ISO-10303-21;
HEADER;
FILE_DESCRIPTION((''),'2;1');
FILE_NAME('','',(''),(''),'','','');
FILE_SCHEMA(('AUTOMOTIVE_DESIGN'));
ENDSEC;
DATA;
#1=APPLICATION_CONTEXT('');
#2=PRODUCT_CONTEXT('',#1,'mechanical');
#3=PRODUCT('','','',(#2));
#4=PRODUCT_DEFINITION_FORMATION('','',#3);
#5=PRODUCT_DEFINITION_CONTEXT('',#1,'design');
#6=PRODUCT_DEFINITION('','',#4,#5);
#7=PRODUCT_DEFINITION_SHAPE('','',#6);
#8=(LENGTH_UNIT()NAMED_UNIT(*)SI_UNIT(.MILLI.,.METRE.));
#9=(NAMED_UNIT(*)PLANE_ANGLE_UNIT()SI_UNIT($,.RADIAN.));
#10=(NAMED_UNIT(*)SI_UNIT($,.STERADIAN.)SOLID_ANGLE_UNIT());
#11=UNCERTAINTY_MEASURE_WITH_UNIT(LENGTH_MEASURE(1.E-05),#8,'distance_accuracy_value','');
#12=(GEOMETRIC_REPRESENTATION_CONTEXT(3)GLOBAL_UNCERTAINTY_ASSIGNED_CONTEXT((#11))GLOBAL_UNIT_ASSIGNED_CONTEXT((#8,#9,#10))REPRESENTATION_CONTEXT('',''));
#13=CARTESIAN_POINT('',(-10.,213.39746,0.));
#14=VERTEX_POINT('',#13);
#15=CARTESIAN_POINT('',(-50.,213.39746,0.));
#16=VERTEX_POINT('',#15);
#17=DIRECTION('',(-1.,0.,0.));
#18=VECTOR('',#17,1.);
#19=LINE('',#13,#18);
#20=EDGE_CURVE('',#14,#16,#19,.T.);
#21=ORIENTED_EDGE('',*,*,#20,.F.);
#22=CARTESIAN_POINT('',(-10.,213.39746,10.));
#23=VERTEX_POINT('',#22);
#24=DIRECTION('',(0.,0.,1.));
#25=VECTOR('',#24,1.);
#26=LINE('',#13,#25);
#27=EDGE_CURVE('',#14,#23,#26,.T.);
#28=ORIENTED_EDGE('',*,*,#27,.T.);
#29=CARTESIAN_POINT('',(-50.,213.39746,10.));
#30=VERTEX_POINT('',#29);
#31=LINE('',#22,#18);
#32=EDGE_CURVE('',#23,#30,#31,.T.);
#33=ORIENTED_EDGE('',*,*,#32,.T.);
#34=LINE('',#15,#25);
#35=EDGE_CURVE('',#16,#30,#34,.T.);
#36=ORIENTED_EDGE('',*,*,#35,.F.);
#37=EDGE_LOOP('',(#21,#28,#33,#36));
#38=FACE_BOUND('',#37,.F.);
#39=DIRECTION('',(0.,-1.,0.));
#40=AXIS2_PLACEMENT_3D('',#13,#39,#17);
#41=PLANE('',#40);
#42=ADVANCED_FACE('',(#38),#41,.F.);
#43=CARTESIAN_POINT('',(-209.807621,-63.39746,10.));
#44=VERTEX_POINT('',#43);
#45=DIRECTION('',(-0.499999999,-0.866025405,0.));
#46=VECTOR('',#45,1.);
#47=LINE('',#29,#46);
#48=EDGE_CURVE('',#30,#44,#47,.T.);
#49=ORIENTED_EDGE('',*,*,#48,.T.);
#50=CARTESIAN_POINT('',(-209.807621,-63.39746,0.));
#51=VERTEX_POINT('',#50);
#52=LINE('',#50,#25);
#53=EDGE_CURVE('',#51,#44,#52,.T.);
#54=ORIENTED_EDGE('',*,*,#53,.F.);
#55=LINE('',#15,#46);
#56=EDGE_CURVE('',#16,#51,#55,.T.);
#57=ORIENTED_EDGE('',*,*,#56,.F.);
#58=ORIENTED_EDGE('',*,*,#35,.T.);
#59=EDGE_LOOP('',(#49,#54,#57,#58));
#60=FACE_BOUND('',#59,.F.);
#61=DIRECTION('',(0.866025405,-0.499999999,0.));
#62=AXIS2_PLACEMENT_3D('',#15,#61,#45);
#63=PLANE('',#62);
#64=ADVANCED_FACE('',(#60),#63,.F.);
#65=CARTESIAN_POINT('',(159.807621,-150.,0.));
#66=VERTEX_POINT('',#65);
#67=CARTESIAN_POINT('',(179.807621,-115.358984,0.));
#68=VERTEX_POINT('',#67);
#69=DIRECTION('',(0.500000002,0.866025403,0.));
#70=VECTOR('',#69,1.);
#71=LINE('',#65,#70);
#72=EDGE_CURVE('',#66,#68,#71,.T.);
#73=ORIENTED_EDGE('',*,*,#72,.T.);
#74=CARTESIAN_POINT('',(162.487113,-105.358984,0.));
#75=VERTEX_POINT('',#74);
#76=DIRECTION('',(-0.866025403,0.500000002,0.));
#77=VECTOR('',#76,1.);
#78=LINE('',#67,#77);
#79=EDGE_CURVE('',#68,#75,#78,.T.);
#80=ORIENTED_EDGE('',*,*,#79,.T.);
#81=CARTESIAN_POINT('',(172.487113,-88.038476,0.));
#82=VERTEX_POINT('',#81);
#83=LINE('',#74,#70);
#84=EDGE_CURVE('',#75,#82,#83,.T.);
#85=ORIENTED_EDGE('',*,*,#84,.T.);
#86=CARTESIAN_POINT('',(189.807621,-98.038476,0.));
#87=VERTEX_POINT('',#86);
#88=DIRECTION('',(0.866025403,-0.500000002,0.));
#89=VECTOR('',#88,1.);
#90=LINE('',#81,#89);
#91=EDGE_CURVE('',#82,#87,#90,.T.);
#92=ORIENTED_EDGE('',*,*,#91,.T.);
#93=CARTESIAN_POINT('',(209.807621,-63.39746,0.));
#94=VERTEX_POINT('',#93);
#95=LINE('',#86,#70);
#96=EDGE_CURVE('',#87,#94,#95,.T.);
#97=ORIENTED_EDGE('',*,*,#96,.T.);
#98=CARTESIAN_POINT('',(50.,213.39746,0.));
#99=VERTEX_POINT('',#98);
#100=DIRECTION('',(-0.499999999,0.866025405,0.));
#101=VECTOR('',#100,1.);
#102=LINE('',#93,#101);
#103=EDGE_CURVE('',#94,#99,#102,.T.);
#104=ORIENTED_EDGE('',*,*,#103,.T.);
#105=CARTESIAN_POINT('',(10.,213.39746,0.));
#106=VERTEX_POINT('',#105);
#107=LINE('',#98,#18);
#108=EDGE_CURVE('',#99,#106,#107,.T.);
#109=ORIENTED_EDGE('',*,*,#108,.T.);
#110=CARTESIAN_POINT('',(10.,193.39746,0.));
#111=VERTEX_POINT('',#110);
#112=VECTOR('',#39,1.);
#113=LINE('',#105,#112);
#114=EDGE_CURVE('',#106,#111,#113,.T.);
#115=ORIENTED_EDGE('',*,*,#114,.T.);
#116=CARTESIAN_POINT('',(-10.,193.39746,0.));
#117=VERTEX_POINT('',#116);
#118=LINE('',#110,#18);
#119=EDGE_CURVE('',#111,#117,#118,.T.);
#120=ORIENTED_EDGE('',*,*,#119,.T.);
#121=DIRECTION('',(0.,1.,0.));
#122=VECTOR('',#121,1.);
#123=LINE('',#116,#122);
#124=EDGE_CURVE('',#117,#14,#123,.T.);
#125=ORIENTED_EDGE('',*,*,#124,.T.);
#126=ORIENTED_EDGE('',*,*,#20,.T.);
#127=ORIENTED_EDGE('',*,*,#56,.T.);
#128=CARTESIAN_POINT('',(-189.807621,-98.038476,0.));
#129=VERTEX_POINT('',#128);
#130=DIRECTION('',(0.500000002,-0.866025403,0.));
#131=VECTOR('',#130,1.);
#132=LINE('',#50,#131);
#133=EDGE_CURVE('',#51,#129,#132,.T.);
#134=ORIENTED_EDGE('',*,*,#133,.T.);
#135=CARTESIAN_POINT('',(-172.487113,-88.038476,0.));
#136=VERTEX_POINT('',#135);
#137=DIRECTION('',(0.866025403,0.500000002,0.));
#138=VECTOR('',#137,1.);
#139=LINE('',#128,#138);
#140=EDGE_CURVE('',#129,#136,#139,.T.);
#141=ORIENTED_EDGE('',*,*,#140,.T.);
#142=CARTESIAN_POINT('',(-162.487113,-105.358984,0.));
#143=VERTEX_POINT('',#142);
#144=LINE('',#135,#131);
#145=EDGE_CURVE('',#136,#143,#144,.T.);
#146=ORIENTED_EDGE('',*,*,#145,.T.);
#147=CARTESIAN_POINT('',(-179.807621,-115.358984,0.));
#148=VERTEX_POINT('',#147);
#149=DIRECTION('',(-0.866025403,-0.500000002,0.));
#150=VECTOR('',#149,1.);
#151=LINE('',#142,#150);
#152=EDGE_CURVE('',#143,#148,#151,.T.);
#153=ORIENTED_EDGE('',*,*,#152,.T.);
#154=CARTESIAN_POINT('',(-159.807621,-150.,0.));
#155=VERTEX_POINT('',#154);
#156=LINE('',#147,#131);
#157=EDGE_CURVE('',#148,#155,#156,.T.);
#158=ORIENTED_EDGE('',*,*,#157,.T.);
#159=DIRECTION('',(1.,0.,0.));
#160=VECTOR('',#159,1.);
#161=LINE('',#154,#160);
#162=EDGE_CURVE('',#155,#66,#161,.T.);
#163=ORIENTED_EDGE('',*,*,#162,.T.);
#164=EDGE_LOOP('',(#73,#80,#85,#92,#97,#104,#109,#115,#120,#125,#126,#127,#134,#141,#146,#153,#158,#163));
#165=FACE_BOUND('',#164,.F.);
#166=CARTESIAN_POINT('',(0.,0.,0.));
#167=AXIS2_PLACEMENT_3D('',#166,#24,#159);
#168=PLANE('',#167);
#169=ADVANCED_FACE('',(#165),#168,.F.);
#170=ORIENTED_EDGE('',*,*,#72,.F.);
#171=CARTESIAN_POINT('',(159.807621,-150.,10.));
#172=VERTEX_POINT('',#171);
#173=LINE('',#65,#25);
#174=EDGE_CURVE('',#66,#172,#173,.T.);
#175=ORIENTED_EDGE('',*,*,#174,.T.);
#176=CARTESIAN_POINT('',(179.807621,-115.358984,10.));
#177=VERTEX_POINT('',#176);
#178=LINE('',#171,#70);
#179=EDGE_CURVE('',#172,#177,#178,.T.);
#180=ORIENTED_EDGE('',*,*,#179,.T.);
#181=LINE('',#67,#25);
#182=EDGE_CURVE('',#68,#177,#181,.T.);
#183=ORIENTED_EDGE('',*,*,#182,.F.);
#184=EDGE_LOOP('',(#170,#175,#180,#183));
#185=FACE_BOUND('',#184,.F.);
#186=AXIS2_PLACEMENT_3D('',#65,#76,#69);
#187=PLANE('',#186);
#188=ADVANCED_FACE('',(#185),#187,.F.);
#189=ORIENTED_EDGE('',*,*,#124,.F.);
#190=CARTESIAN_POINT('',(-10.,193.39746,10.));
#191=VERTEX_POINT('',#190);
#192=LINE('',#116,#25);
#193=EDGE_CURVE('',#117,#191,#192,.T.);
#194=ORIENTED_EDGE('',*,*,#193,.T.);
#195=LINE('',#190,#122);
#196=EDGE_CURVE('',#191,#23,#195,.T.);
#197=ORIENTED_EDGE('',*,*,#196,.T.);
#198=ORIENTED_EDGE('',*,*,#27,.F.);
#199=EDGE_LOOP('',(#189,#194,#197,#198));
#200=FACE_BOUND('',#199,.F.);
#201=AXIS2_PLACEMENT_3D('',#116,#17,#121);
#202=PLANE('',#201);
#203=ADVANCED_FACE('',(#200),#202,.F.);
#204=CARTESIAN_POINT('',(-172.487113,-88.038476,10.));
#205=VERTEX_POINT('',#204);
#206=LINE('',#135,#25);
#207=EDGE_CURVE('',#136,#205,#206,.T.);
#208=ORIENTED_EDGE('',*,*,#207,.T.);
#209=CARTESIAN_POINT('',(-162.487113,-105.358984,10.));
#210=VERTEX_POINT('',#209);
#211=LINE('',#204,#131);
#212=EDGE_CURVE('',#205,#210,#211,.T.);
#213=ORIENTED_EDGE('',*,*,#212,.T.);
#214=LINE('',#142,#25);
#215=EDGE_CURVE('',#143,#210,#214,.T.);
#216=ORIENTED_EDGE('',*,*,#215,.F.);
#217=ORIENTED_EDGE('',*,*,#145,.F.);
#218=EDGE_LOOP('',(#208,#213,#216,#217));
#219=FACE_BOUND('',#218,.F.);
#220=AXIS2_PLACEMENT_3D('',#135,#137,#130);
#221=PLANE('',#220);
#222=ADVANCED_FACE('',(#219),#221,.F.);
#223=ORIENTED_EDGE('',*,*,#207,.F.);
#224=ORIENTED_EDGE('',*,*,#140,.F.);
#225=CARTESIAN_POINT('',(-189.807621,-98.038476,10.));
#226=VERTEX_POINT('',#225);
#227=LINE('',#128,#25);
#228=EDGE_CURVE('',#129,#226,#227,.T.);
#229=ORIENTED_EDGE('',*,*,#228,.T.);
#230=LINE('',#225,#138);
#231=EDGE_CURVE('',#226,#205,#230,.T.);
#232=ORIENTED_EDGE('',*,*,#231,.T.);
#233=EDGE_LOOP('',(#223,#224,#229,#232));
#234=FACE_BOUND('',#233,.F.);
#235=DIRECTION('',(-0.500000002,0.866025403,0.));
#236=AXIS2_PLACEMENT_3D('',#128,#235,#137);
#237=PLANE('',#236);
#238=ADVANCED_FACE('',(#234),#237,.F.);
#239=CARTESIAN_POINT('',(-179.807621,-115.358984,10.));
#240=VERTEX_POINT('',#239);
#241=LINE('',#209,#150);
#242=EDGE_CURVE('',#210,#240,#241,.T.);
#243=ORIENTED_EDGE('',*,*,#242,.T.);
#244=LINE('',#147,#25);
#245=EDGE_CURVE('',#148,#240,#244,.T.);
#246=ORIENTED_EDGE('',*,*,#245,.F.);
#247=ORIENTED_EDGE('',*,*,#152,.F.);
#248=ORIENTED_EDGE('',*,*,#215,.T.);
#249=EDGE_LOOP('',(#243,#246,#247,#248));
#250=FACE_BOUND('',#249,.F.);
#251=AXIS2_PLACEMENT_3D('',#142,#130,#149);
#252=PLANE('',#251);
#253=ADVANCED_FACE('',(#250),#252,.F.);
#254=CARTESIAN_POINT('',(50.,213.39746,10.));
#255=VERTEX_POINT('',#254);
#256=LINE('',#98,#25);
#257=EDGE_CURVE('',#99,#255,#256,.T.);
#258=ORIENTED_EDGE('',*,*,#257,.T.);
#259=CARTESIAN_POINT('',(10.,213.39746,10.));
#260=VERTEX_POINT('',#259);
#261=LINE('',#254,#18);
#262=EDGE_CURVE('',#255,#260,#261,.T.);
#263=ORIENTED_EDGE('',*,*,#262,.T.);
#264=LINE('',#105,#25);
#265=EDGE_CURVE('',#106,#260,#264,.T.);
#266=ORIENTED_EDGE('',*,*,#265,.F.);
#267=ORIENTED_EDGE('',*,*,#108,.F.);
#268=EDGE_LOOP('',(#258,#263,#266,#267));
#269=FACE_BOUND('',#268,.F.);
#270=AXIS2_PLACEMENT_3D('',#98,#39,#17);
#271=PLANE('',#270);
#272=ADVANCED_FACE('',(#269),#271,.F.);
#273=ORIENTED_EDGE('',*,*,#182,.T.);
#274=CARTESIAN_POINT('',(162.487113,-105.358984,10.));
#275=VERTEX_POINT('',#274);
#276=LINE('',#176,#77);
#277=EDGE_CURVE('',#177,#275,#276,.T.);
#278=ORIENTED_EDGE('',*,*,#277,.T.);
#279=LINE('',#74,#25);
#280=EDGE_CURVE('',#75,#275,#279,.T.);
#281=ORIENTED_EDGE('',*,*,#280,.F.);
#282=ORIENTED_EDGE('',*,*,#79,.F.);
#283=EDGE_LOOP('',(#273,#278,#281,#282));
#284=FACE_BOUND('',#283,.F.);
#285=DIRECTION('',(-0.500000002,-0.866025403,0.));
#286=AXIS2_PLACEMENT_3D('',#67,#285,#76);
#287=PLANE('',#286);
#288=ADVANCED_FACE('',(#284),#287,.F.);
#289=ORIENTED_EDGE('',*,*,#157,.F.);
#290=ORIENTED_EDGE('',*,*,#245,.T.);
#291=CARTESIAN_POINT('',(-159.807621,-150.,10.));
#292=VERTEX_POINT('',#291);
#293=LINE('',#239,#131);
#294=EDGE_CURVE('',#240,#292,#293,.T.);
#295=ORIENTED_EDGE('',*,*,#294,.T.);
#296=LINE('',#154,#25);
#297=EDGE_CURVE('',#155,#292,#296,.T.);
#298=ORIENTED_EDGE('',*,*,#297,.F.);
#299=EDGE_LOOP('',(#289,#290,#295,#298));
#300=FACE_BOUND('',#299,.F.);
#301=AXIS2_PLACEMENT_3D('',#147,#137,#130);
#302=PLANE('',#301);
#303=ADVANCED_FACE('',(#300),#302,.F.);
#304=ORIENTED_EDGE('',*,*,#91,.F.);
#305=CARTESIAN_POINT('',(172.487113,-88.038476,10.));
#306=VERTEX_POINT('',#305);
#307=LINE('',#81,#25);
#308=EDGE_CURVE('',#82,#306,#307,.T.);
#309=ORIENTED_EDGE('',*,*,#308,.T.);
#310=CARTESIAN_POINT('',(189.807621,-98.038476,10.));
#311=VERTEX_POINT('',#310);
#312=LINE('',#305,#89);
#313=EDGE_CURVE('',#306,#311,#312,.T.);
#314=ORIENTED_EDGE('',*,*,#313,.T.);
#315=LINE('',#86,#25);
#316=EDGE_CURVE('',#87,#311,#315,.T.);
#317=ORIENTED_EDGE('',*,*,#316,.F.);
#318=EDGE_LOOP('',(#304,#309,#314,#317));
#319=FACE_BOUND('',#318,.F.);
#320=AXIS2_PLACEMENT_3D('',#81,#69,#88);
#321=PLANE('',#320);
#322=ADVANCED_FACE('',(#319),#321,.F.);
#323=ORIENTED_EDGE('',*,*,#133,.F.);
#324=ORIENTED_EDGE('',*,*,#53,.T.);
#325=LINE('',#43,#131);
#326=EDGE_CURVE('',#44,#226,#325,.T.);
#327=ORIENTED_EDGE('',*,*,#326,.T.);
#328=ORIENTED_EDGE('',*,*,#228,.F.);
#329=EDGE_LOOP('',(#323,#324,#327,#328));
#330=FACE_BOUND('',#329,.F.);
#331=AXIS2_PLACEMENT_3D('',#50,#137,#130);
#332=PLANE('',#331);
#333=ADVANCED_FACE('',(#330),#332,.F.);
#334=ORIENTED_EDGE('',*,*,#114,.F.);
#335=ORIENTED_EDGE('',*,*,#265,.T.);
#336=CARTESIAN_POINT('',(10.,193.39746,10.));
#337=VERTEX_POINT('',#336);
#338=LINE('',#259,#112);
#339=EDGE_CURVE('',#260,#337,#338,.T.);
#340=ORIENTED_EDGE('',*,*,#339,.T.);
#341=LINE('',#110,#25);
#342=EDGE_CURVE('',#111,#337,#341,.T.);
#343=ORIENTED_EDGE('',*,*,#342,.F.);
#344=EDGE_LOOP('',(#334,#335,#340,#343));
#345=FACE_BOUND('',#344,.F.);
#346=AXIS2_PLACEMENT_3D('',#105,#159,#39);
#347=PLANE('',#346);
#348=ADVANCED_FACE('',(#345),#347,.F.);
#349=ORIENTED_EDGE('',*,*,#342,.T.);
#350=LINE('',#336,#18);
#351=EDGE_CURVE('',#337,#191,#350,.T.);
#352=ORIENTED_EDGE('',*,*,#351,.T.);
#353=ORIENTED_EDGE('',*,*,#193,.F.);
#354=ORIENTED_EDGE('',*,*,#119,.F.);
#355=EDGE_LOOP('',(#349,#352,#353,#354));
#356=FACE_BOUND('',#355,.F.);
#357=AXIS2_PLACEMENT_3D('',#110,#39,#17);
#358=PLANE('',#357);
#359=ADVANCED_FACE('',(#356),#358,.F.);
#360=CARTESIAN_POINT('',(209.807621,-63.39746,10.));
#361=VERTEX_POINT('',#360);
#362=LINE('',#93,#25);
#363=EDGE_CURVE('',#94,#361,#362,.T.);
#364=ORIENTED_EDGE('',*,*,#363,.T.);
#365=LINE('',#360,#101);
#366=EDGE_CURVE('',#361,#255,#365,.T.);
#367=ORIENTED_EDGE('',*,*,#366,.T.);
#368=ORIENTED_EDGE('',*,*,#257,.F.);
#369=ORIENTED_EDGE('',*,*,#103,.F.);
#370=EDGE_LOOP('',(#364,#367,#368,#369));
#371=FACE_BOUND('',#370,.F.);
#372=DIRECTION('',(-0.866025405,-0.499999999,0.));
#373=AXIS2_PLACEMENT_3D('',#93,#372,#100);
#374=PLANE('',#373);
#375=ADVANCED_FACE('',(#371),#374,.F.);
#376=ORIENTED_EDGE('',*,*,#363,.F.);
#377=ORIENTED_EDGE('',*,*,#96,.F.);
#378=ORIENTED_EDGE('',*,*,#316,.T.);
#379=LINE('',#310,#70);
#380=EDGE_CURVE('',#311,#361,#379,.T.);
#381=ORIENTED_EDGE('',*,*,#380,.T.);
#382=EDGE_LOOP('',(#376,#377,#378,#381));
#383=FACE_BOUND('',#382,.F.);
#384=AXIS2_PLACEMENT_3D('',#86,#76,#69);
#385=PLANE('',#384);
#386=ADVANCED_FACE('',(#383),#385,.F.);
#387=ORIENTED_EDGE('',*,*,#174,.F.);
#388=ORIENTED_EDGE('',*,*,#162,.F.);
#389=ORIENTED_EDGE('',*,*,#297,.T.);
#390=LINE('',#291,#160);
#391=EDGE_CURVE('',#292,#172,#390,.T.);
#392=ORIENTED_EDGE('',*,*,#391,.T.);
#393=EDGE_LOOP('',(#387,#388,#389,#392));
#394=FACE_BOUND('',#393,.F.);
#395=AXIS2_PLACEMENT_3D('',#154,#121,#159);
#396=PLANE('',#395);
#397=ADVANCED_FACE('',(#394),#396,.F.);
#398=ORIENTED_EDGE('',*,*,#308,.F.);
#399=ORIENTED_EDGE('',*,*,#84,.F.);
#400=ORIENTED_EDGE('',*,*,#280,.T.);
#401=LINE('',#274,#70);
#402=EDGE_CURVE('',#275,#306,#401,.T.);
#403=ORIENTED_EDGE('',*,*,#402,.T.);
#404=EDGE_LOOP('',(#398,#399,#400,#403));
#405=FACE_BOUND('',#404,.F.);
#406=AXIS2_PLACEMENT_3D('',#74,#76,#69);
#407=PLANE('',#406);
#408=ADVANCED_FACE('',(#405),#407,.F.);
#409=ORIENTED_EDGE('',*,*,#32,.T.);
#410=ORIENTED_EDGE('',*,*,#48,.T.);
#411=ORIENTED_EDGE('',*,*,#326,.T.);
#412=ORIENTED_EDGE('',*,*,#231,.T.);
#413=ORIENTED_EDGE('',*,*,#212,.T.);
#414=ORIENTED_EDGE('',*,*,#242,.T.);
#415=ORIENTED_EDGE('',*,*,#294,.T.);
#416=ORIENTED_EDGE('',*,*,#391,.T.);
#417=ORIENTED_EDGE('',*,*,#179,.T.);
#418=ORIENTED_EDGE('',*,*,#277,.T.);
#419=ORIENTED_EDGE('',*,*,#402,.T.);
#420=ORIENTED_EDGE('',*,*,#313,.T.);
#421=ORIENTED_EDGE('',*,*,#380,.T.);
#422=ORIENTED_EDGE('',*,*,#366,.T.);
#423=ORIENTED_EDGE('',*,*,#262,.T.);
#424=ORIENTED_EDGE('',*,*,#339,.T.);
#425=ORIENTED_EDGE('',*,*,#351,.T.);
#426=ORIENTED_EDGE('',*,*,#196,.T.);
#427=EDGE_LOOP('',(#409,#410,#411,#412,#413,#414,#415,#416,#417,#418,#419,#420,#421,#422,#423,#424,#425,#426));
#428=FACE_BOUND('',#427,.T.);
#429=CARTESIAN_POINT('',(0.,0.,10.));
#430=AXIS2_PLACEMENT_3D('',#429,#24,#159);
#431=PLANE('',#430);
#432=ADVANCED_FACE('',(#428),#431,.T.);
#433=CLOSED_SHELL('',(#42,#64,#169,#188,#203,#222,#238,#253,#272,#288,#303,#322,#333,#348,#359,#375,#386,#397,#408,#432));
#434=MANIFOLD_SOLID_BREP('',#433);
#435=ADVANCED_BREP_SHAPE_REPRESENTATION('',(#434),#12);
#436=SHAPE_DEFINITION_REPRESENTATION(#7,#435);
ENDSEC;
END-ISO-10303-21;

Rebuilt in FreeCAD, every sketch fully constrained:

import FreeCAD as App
import Part
import Sketcher

V = App.Vector
Q = App.Units.Quantity


def add_polygon(sketch, points):
    """Adds a closed chain of lines whose ends are joined by coincident constraints."""
    first, n = sketch.GeometryCount, len(points)
    for a, b in zip(points, points[1:] + points[:1]):
        sketch.addGeometry(Part.LineSegment(App.Vector(*a, 0), App.Vector(*b, 0)), False)
    for i in range(n):
        sketch.addConstraint(Sketcher.Constraint("Coincident", first + i, 2, first + (i + 1) % n, 1))

doc = App.newDocument("Part")
params = doc.addObject("Spreadsheet::Sheet", "Params")
for row, (alias, value) in enumerate([
    ("sketch1_width", "40 mm"),
    ("sketch1_width2", "20 mm"),
    ("sketch1_length", "40 mm"),
    ("sketch1_length2", "20 mm"),
    ("pad1_length", "10 mm"),
], start=1):
    params.set(f"A{row}", alias)
    params.set(f"B{row}", "=" + value)
    params.setAlias(f"B{row}", alias)

body = doc.addObject("PartDesign::Body", "Body")

# Sketch on XY plane
sketch1 = doc.addObject("Sketcher::SketchObject", "Sketch")
body.addObject(sketch1)
sketch1.AttachmentSupport = (doc.XY_Plane, [""])
sketch1.MapMode = "FlatFace"
add_polygon(sketch1, [(-10, 213.39746), (-50, 213.39746), (-209.807621, -63.39746), (-189.807621, -98.038476), (-172.487113, -88.038476), (-162.487113, -105.358984), (-179.807621, -115.358984), (-159.807621, -150), (159.807621, -150), (179.807621, -115.358984), (162.487113, -105.358984), (172.487113, -88.038476), (189.807621, -98.038476), (209.807621, -63.39746), (50, 213.39746), (10, 213.39746), (10, 193.39746), (-10, 193.39746)])  # lines 0-17
sketch1.addConstraint([
    Sketcher.Constraint("Horizontal", 0),
    Sketcher.Constraint("Horizontal", 7),
    Sketcher.Constraint("Horizontal", 14),
    Sketcher.Constraint("Vertical", 15),
    Sketcher.Constraint("Horizontal", 16),
    Sketcher.Constraint("Vertical", 17),
    Sketcher.Constraint("Symmetric", 5, 2, 8, 2, -2),
    Sketcher.Constraint("Symmetric", 4, 2, 9, 2, -2),
    Sketcher.Constraint("Symmetric", 3, 2, 10, 2, -2),
    Sketcher.Constraint("Symmetric", 2, 2, 11, 2, -2),
    Sketcher.Constraint("Symmetric", 1, 2, 12, 2, -2),
    Sketcher.Constraint("Symmetric", 0, 2, 13, 2, -2),
    Sketcher.Constraint("Perpendicular", 2, 3),
    Sketcher.Constraint("Perpendicular", 3, 4),
    Sketcher.Constraint("Perpendicular", 4, 5),
    Sketcher.Constraint("Perpendicular", 5, 6),
    Sketcher.Constraint("Parallel", 1, 8),
    Sketcher.Constraint("Perpendicular", 8, 9),
    Sketcher.Constraint("Equal", 0, 14),
    Sketcher.Constraint("Equal", 16, 15),
    Sketcher.Constraint("Equal", 3, 4),
    Sketcher.Constraint("Equal", 4, 5),
    Sketcher.Constraint("Equal", 2, 6),
    Sketcher.Constraint("DistanceX", 0, 2, 0, 1, Q("40 mm")),
    Sketcher.Constraint("DistanceX", 16, 2, 16, 1, Q("20 mm")),
    Sketcher.Constraint("Angle", 1, Q("-120 deg")),
    Sketcher.Constraint("Distance", 2, Q("40 mm")),
    Sketcher.Constraint("Distance", 3, Q("20 mm")),
    Sketcher.Constraint("DistanceY", 6, 2, -1, 1, Q("150 mm")),
    Sketcher.Constraint("DistanceX", 7, 1, 7, 2, Q("319.615242 mm")),
])
sketch1.setExpression("Constraints[41]", "Params.sketch1_width")
sketch1.setExpression("Constraints[42]", "Params.sketch1_width2")
sketch1.setExpression("Constraints[44]", "Params.sketch1_length")
sketch1.setExpression("Constraints[45]", "Params.sketch1_length2")
pad1 = doc.addObject("PartDesign::Pad", "Pad")
body.addObject(pad1)
pad1.Profile = sketch1
pad1.setExpression("Length", "Params.pad1_length")

doc.recompute()
